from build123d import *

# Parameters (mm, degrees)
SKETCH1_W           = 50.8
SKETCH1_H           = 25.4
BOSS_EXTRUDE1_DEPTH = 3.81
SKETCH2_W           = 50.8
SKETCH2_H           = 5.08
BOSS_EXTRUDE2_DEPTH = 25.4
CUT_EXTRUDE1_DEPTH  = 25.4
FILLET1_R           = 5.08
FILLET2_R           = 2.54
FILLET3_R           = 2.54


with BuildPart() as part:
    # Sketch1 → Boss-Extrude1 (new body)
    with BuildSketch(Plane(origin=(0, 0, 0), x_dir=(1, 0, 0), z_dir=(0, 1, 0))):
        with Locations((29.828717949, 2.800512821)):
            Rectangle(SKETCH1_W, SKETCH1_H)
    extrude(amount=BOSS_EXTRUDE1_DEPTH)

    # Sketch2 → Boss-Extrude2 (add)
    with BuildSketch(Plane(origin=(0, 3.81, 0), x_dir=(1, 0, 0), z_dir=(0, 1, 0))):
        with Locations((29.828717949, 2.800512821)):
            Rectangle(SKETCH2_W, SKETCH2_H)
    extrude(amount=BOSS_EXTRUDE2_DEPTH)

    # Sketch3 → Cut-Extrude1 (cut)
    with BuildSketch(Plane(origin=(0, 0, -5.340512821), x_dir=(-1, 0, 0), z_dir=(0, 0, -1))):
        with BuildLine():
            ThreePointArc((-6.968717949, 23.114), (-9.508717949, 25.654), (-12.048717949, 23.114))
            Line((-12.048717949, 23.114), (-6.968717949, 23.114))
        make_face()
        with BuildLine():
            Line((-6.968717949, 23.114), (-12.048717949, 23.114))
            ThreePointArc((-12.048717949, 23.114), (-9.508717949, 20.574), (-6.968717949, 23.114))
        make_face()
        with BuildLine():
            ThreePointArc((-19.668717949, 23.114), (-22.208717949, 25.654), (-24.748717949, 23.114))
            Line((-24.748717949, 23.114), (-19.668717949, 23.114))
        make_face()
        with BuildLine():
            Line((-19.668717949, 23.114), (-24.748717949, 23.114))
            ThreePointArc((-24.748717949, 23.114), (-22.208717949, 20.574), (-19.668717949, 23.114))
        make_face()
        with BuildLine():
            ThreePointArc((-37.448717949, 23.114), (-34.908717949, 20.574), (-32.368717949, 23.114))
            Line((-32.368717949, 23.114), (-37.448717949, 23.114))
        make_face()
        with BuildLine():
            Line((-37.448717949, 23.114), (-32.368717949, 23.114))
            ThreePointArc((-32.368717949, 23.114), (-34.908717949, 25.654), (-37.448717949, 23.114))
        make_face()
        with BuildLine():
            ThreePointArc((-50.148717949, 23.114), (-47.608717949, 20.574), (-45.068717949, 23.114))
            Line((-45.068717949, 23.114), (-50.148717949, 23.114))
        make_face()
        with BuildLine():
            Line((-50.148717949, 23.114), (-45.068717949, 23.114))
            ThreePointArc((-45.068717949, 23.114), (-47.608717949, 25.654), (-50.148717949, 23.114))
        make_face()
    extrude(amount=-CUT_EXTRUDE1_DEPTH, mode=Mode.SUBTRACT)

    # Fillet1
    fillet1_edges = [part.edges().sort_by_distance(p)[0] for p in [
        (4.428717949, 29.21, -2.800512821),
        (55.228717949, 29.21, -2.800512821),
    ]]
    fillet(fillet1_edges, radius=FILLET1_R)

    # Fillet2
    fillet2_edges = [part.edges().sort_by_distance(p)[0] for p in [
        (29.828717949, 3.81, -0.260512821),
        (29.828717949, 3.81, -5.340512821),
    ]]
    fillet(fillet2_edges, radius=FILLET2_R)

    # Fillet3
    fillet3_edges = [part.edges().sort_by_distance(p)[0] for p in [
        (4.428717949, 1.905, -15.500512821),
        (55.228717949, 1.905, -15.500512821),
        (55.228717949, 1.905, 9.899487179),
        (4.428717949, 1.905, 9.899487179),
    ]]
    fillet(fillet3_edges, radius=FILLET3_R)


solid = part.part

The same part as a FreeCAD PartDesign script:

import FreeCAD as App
import Part
import Sketcher

V = App.Vector
Q = App.Units.Quantity


def edges_at(feature, points):
    """Names of the edges that pass closest to the given points."""
    edges = feature.Shape.Edges
    near = lambda p: min(range(len(edges)), key=lambda i: edges[i].distToShape(Part.Vertex(*p))[0])
    return sorted({f"Edge{near(p) + 1}" for p in points})

doc = App.newDocument("Part")
body = doc.addObject("PartDesign::Body", "Body")

# Sketch on XZ plane
sketch1 = body.newObject("Sketcher::SketchObject", "Sketch")
sketch1.AttachmentSupport = (doc.getObject("XZ_Plane"), [""])
sketch1.MapMode = "FlatFace"
sketch1.addGeometry([
    Part.LineSegment(V(4, -16, 0), V(4, 10, 0)),
    Part.LineSegment(V(4, 10, 0), V(55, 10, 0)),
    Part.LineSegment(V(55, 10, 0), V(55, -16, 0)),
    Part.LineSegment(V(55, -16, 0), V(4, -16, 0)),
], False)
sketch1.addConstraint([
    Sketcher.Constraint("Coincident", 0, 2, 1, 1),
    Sketcher.Constraint("Coincident", 1, 2, 2, 1),
    Sketcher.Constraint("Coincident", 2, 2, 3, 1),
    Sketcher.Constraint("Coincident", 3, 2, 0, 1),
    Sketcher.Constraint("Vertical", 0),
    Sketcher.Constraint("Horizontal", 1),
    Sketcher.Constraint("Vertical", 2),
    Sketcher.Constraint("Horizontal", 3),
    Sketcher.Constraint("DistanceX", 1, 1, 1, 2, Q("2 in")),
    Sketcher.Constraint("DistanceY", 0, 1, 0, 2, Q("1 in")),
    Sketcher.Constraint("DistanceX", -1, 1, 0, 2, Q("4.428718 mm")),
    Sketcher.Constraint("DistanceY", -1, 1, 0, 2, Q("9.899487 mm")),
])
pad1 = body.newObject("PartDesign::Pad", "Pad")
pad1.Profile = sketch1
pad1.Length = Q("0.15 in")
pad1.Reversed = True

# Sketch on XZ plane
sketch2 = body.newObject("Sketcher::SketchObject", "Sketch001")
sketch2.AttachmentSupport = (doc.getObject("XZ_Plane"), [""])
sketch2.MapMode = "FlatFace"
sketch2.AttachmentOffset = App.Placement(V(0, 0, -0.15 * 25.4), App.Rotation())
sketch2.addGeometry([
    Part.LineSegment(V(4, -5, 0), V(4, 0, 0)),
    Part.LineSegment(V(4, 0, 0), V(55, 0, 0)),
    Part.LineSegment(V(55, 0, 0), V(55, -5, 0)),
    Part.LineSegment(V(55, -5, 0), V(4, -5, 0)),
], False)
sketch2.addConstraint([
    Sketcher.Constraint("Coincident", 0, 2, 1, 1),
    Sketcher.Constraint("Coincident", 1, 2, 2, 1),
    Sketcher.Constraint("Coincident", 2, 2, 3, 1),
    Sketcher.Constraint("Coincident", 3, 2, 0, 1),
    Sketcher.Constraint("Vertical", 0),
    Sketcher.Constraint("Horizontal", 1),
    Sketcher.Constraint("Vertical", 2),
    Sketcher.Constraint("Horizontal", 3),
    Sketcher.Constraint("DistanceX", 1, 1, 1, 2, Q("2 in")),
    Sketcher.Constraint("DistanceY", 0, 1, 0, 2, Q("0.2 in")),
    Sketcher.Constraint("DistanceX", -1, 1, 0, 2, Q("4.428718 mm")),
    Sketcher.Constraint("DistanceY", 0, 2, -1, 1, Q("0.260513 mm")),
])
pad2 = body.newObject("PartDesign::Pad", "Pad001")
pad2.Profile = sketch2
pad2.Length = Q("1 in")
pad2.Reversed = True

# Sketch on XY plane
sketch3 = body.newObject("Sketcher::SketchObject", "Sketch002")
sketch3.AttachmentSupport = (doc.getObject("XY_Plane"), [""])
sketch3.MapMode = "FlatFace"
sketch3.AttachmentOffset = App.Placement(V(0, 0, -5.340513), App.Rotation())
sketch3.addGeometry([
    Part.Circle(V(9.5, 23.1, 0), V(0, 0, 1), 2.5),
    Part.Circle(V(22.2, 23.1, 0), V(0, 0, 1), 2.5),
    Part.Circle(V(34.9, 23.1, 0), V(0, 0, 1), 2.5),
    Part.Circle(V(47.6, 23.1, 0), V(0, 0, 1), 2.5),
], False)
sketch3.addConstraint([
    Sketcher.Constraint("Equal", 0, 1),
    Sketcher.Constraint("Equal", 1, 2),
    Sketcher.Constraint("Equal", 2, 3),
    Sketcher.Constraint("Horizontal", 0, 3, 1, 3),
    Sketcher.Constraint("Horizontal", 1, 3, 2, 3),
    Sketcher.Constraint("Horizontal", 2, 3, 3, 3),
    Sketcher.Constraint("Diameter", 0, Q("0.2 in")),
    Sketcher.Constraint("DistanceX", 0, 3, 2, 3, Q("1 in")),
    Sketcher.Constraint("DistanceX", 1, 3, 3, 3, Q("1 in")),
    Sketcher.Constraint("DistanceX", 0, 3, 1, 3, Q("0.5 in")),
    Sketcher.Constraint("DistanceY", -1, 1, 0, 3, Q("0.91 in")),
    Sketcher.Constraint("DistanceX", -1, 1, 0, 3, Q("9.508718 mm")),
])
pocket1 = body.newObject("PartDesign::Pocket", "Pocket")
pocket1.Profile = sketch3
pocket1.Length = Q("1 in")
pocket1.Reversed = True
doc.recompute()

fillet = body.newObject("PartDesign::Fillet", "Fillet")
fillet.Base = (pocket1, edges_at(pocket1, [(4.429, 29.21, -2.801), (55.229, 29.21, -2.801)]))
fillet.Radius = Q("0.2 in")
doc.recompute()

fillet2 = body.newObject("PartDesign::Fillet", "Fillet001")
fillet2.Base = (fillet, edges_at(fillet, [(29.829, 3.81, -0.261), (29.829, 3.81, -5.341)]))
fillet2.Radius = Q("0.1 in")
doc.recompute()

fillet3 = body.newObject("PartDesign::Fillet", "Fillet002")
fillet3.Base = (fillet2, edges_at(fillet2, [
    (4.429, 1.905, -15.501),
    (55.229, 1.905, -15.501),
    (55.229, 1.905, 9.899),
    (4.429, 1.905, 9.899),
]))
fillet3.Radius = Q("0.1 in")

doc.recompute()
